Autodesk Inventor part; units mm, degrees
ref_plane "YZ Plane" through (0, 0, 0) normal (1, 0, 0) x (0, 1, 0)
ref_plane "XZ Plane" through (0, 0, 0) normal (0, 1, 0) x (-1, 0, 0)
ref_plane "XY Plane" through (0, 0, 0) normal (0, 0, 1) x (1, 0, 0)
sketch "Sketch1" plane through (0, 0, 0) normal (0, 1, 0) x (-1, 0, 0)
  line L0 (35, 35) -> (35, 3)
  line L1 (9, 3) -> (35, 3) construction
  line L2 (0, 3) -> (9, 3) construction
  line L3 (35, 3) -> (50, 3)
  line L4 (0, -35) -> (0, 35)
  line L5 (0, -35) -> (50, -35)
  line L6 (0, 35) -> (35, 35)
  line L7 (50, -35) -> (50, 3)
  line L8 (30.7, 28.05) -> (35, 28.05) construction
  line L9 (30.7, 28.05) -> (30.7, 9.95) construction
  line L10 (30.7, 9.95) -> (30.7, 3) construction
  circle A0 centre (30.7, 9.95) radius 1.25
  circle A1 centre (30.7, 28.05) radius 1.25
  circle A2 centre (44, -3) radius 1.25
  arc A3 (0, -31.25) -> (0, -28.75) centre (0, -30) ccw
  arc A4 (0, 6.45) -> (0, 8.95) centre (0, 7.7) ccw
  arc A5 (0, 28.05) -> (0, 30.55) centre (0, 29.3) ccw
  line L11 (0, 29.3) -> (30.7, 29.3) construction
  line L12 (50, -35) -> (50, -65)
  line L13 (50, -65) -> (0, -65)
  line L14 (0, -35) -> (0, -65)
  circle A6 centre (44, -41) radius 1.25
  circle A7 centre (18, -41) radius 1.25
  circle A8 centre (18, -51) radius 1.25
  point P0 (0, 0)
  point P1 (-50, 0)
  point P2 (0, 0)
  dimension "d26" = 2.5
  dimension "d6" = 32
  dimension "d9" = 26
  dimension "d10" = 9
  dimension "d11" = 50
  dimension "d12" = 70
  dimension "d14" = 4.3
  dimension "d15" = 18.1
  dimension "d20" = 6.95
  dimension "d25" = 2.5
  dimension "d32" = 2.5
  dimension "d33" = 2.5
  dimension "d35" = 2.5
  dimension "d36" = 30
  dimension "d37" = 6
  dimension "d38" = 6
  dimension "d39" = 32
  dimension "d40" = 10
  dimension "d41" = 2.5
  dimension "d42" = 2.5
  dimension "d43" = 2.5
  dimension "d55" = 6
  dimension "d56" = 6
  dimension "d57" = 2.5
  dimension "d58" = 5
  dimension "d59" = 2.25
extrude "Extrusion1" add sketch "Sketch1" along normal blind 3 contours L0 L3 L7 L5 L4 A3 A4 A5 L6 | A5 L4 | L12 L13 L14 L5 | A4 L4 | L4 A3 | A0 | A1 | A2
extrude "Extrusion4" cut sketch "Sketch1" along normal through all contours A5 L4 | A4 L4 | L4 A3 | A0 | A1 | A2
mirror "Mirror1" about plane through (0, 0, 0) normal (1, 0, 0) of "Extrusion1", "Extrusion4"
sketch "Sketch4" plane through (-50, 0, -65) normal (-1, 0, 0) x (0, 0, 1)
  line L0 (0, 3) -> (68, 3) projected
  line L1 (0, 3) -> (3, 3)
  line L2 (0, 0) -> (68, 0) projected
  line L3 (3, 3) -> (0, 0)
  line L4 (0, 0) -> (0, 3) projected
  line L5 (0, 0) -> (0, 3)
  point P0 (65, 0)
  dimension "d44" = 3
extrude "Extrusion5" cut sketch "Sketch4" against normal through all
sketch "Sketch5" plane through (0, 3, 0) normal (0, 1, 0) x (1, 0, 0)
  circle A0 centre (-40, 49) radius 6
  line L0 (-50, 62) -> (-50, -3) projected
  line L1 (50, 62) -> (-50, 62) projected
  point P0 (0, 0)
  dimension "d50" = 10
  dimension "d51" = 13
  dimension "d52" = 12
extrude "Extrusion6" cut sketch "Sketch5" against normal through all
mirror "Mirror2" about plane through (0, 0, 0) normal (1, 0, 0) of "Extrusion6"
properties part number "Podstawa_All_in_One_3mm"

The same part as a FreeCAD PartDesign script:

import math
import FreeCAD as App
import Part
import Sketcher

V = App.Vector
Q = App.Units.Quantity


def add_polygon(sketch, points):
    """Adds a closed chain of lines whose ends are joined by coincident constraints."""
    first, n = sketch.GeometryCount, len(points)
    for a, b in zip(points, points[1:] + points[:1]):
        sketch.addGeometry(Part.LineSegment(App.Vector(*a, 0), App.Vector(*b, 0)), False)
    for i in range(n):
        sketch.addConstraint(Sketcher.Constraint("Coincident", first + i, 2, first + (i + 1) % n, 1))

doc = App.newDocument("Part")
params = doc.addObject("Spreadsheet::Sheet", "Params")
for row, (alias, value) in enumerate([
    ("sketch1_diameter", "2.5 mm"),
    ("sketch1_width", "50 mm"),
    ("sketch1_height", "32 mm"),
    ("sketch1_height2", "100 mm"),
    ("pad1_length", "3 mm"),
    ("sketch2_diameter", "2.5 mm"),
    ("sketch3_width", "3 mm"),
    ("sketch4_diameter", "12 mm"),
], start=1):
    params.set(f"A{row}", alias)
    params.set(f"B{row}", "=" + value)
    params.setAlias(f"B{row}", alias)

body = doc.addObject("PartDesign::Body", "Body")

# Sketch on XZ plane
sketch1 = body.newObject("Sketcher::SketchObject", "Sketch")
sketch1.AttachmentSupport = (doc.getObject("XZ_Plane"), [""])
sketch1.MapMode = "FlatFace"
add_polygon(sketch1, [(-35, 3), (-35, 35), (0, 35), (0, -65), (-50, -65), (-50, 3)])  # lines 0-5
sketch1.addGeometry(Part.Circle(V(-44, -41, 0), V(0, 0, 1), 1.2), False)  # 6
sketch1.addGeometry(Part.Circle(V(-18, -51, 0), V(0, 0, 1), 1.2), False)  # 7
sketch1.addGeometry(Part.Circle(V(-18, -41, 0), V(0, 0, 1), 1.2), False)  # 8
sketch1.addConstraint([
    Sketcher.Constraint("Vertical", 0),
    Sketcher.Constraint("Horizontal", 1),
    Sketcher.Constraint("Vertical", 2),
    Sketcher.Constraint("Horizontal", 3),
    Sketcher.Constraint("Vertical", 4),
    Sketcher.Constraint("Horizontal", 5),
    Sketcher.Constraint("Equal", 6, 7),
    Sketcher.Constraint("Equal", 7, 8),
    Sketcher.Constraint("PointOnObject", 1, 2, -2),
    Sketcher.Constraint("Horizontal", 6, 3, 8, 3),
    Sketcher.Constraint("Vertical", 7, 3, 8, 3),
    Sketcher.Constraint("Diameter", 6, Q("2.5 mm")),
    Sketcher.Constraint("DistanceX", 3, 2, 3, 1, Q("50 mm")),
    Sketcher.Constraint("DistanceY", 0, 1, 0, 2, Q("32 mm")),
    Sketcher.Constraint("DistanceX", 6, 3, 7, 3, Q("26 mm")),
    Sketcher.Constraint("DistanceY", 7, 3, 6, 3, Q("10 mm")),
    Sketcher.Constraint("DistanceX", 6, 3, 0, 2, Q("9 mm")),
    Sketcher.Constraint("DistanceX", 3, 2, 6, 3, Q("6 mm")),
    Sketcher.Constraint("DistanceY", 2, 2, 2, 1, Q("100 mm")),
    Sketcher.Constraint("DistanceY", 6, 3, -1, 1, Q("41 mm")),
    Sketcher.Constraint("DistanceY", -1, 1, 0, 2, Q("35 mm")),
])
sketch1.setExpression("Constraints[17]", "Params.sketch1_diameter")
sketch1.setExpression("Constraints[18]", "Params.sketch1_width")
sketch1.setExpression("Constraints[19]", "Params.sketch1_height")
sketch1.setExpression("Constraints[24]", "Params.sketch1_height2")
pad1 = body.newObject("PartDesign::Pad", "Pad")
pad1.Profile = sketch1
pad1.setExpression("Length", "Params.pad1_length")
pad1.Reversed = True

# Sketch on XZ plane
sketch2 = body.newObject("Sketcher::SketchObject", "Sketch001")
sketch2.AttachmentSupport = (doc.getObject("XZ_Plane"), [""])
sketch2.MapMode = "FlatFace"
sketch2.addGeometry([
    Part.ArcOfCircle(Part.Circle(V(0, 29.3, 0), V(0, 0, 1), 1.2), math.radians(90), math.radians(270)),  # 0
    Part.LineSegment(V(0, 30.6, 0), V(0, 28.1, 0)),  # 1
    Part.ArcOfCircle(Part.Circle(V(0, 7.7, 0), V(0, 0, 1), 1.2), math.radians(90), math.radians(270)),  # 2
    Part.LineSegment(V(0, 8.9, 0), V(0, 6.5, 0)),  # 3
    Part.LineSegment(V(0, -28.8, 0), V(0, -31.2, 0)),  # 4
    Part.ArcOfCircle(Part.Circle(V(0, -30, 0), V(0, 0, 1), 1.2), math.radians(90), math.radians(270)),  # 5
    Part.Circle(V(-30.7, 9.9, 0), V(0, 0, 1), 1.2),  # 6
    Part.Circle(V(-30.7, 28.1, 0), V(0, 0, 1), 1.2),  # 7
    Part.Circle(V(-44, -3, 0), V(0, 0, 1), 1.2),  # 8
], False)
sketch2.addConstraint([
    Sketcher.Constraint("Coincident", 0, 1, 1, 1),
    Sketcher.Constraint("Coincident", 1, 2, 0, 2),
    Sketcher.Constraint("Coincident", 2, 1, 3, 1),
    Sketcher.Constraint("Coincident", 3, 2, 2, 2),
    Sketcher.Constraint("Coincident", 4, 1, 5, 1),
    Sketcher.Constraint("Coincident", 5, 2, 4, 2),
    Sketcher.Constraint("Vertical", 1),
    Sketcher.Constraint("Vertical", 3),
    Sketcher.Constraint("Vertical", 4),
    Sketcher.Constraint("Equal", 0, 2),
    Sketcher.Constraint("Equal", 2, 5),
    Sketcher.Constraint("Equal", 5, 6),
    Sketcher.Constraint("Equal", 6, 7),
    Sketcher.Constraint("Equal", 7, 8),
    Sketcher.Constraint("PointOnObject", 0, 3, -2),
    Sketcher.Constraint("PointOnObject", 2, 3, -2),
    Sketcher.Constraint("PointOnObject", 5, 3, -2),
    Sketcher.Constraint("PointOnObject", 0, 1, -2),
    Sketcher.Constraint("PointOnObject", 2, 1, -2),
    Sketcher.Constraint("PointOnObject", 4, 1, -2),
    Sketcher.Constraint("Horizontal", 7, 3, 1, 2),
    Sketcher.Constraint("Vertical", 6, 3, 7, 3),
    Sketcher.Constraint("Diameter", 6, Q("2.5 mm")),
    Sketcher.Constraint("DistanceY", 5, 3, -1, 1, Q("30 mm")),
    Sketcher.Constraint("DistanceY", 6, 3, 7, 3, Q("18.1 mm")),
    Sketcher.Constraint("DistanceY", 2, 3, 6, 3, Q("2.25 mm")),
    Sketcher.Constraint("DistanceX", 8, 3, -1, 1, Q("44 mm")),
    Sketcher.Constraint("DistanceY", 8, 3, -1, 1, Q("3 mm")),
    Sketcher.Constraint("DistanceY", -1, 1, 0, 3, Q("29.3 mm")),
    Sketcher.Constraint("DistanceX", 6, 3, -1, 1, Q("30.7 mm")),
])
sketch2.setExpression("Constraints[22]", "Params.sketch2_diameter")
pocket1 = body.newObject("PartDesign::Pocket", "Pocket")
pocket1.Profile = sketch2
pocket1.Type = "ThroughAll"
doc.recompute()

mirrored = body.newObject("PartDesign::Mirrored", "Mirrored")
mirrored.Originals = [pad1, pocket1]
mirrored.MirrorPlane = (doc.getObject("YZ_Plane"), [""])
body.Tip = mirrored

# Sketch on YZ plane
sketch3 = body.newObject("Sketcher::SketchObject", "Sketch002")
sketch3.AttachmentSupport = (doc.getObject("YZ_Plane"), [""])
sketch3.MapMode = "FlatFace"
sketch3.AttachmentOffset = App.Placement(V(0, 0, -50), App.Rotation())
add_polygon(sketch3, [(3, -62), (3, -65), (0, -65)])  # lines 0-2
sketch3.addConstraint([
    Sketcher.Constraint("Vertical", 0),
    Sketcher.Constraint("Horizontal", 1),
    Sketcher.Constraint("PointOnObject", 1, 2, -2),
    Sketcher.Constraint("Equal", 1, 0),
    Sketcher.Constraint("DistanceX", 1, 2, 1, 1, Q("3 mm")),
    Sketcher.Constraint("DistanceY", 0, 2, -1, 1, Q("65 mm")),
])
sketch3.setExpression("Constraints[7]", "Params.sketch3_width")
pocket2 = body.newObject("PartDesign::Pocket", "Pocket001")
pocket2.Profile = sketch3
pocket2.Type = "ThroughAll"
pocket2.Reversed = True

# Sketch on XZ plane
sketch4 = body.newObject("Sketcher::SketchObject", "Sketch003")
sketch4.AttachmentSupport = (doc.getObject("XZ_Plane"), [""])
sketch4.MapMode = "FlatFace"
sketch4.AttachmentOffset = App.Placement(V(0, 0, -3), App.Rotation())
sketch4.addGeometry(Part.Circle(V(-40, -49, 0), V(0, 0, 1), 6), False)
sketch4.addConstraint([
    Sketcher.Constraint("Diameter", 0, Q("12 mm")),
    Sketcher.Constraint("DistanceX", 0, 3, -1, 1, Q("40 mm")),
    Sketcher.Constraint("DistanceY", 0, 3, -1, 1, Q("49 mm")),
])
sketch4.setExpression("Constraints[0]", "Params.sketch4_diameter")
pocket3 = body.newObject("PartDesign::Pocket", "Pocket002")
pocket3.Profile = sketch4
pocket3.Type = "ThroughAll"
pocket3.Reversed = True
doc.recompute()

mirrored2 = body.newObject("PartDesign::Mirrored", "Mirrored001")
mirrored2.Originals = [pocket3]
mirrored2.MirrorPlane = (doc.getObject("YZ_Plane"), [""])
body.Tip = mirrored2

doc.recompute()
